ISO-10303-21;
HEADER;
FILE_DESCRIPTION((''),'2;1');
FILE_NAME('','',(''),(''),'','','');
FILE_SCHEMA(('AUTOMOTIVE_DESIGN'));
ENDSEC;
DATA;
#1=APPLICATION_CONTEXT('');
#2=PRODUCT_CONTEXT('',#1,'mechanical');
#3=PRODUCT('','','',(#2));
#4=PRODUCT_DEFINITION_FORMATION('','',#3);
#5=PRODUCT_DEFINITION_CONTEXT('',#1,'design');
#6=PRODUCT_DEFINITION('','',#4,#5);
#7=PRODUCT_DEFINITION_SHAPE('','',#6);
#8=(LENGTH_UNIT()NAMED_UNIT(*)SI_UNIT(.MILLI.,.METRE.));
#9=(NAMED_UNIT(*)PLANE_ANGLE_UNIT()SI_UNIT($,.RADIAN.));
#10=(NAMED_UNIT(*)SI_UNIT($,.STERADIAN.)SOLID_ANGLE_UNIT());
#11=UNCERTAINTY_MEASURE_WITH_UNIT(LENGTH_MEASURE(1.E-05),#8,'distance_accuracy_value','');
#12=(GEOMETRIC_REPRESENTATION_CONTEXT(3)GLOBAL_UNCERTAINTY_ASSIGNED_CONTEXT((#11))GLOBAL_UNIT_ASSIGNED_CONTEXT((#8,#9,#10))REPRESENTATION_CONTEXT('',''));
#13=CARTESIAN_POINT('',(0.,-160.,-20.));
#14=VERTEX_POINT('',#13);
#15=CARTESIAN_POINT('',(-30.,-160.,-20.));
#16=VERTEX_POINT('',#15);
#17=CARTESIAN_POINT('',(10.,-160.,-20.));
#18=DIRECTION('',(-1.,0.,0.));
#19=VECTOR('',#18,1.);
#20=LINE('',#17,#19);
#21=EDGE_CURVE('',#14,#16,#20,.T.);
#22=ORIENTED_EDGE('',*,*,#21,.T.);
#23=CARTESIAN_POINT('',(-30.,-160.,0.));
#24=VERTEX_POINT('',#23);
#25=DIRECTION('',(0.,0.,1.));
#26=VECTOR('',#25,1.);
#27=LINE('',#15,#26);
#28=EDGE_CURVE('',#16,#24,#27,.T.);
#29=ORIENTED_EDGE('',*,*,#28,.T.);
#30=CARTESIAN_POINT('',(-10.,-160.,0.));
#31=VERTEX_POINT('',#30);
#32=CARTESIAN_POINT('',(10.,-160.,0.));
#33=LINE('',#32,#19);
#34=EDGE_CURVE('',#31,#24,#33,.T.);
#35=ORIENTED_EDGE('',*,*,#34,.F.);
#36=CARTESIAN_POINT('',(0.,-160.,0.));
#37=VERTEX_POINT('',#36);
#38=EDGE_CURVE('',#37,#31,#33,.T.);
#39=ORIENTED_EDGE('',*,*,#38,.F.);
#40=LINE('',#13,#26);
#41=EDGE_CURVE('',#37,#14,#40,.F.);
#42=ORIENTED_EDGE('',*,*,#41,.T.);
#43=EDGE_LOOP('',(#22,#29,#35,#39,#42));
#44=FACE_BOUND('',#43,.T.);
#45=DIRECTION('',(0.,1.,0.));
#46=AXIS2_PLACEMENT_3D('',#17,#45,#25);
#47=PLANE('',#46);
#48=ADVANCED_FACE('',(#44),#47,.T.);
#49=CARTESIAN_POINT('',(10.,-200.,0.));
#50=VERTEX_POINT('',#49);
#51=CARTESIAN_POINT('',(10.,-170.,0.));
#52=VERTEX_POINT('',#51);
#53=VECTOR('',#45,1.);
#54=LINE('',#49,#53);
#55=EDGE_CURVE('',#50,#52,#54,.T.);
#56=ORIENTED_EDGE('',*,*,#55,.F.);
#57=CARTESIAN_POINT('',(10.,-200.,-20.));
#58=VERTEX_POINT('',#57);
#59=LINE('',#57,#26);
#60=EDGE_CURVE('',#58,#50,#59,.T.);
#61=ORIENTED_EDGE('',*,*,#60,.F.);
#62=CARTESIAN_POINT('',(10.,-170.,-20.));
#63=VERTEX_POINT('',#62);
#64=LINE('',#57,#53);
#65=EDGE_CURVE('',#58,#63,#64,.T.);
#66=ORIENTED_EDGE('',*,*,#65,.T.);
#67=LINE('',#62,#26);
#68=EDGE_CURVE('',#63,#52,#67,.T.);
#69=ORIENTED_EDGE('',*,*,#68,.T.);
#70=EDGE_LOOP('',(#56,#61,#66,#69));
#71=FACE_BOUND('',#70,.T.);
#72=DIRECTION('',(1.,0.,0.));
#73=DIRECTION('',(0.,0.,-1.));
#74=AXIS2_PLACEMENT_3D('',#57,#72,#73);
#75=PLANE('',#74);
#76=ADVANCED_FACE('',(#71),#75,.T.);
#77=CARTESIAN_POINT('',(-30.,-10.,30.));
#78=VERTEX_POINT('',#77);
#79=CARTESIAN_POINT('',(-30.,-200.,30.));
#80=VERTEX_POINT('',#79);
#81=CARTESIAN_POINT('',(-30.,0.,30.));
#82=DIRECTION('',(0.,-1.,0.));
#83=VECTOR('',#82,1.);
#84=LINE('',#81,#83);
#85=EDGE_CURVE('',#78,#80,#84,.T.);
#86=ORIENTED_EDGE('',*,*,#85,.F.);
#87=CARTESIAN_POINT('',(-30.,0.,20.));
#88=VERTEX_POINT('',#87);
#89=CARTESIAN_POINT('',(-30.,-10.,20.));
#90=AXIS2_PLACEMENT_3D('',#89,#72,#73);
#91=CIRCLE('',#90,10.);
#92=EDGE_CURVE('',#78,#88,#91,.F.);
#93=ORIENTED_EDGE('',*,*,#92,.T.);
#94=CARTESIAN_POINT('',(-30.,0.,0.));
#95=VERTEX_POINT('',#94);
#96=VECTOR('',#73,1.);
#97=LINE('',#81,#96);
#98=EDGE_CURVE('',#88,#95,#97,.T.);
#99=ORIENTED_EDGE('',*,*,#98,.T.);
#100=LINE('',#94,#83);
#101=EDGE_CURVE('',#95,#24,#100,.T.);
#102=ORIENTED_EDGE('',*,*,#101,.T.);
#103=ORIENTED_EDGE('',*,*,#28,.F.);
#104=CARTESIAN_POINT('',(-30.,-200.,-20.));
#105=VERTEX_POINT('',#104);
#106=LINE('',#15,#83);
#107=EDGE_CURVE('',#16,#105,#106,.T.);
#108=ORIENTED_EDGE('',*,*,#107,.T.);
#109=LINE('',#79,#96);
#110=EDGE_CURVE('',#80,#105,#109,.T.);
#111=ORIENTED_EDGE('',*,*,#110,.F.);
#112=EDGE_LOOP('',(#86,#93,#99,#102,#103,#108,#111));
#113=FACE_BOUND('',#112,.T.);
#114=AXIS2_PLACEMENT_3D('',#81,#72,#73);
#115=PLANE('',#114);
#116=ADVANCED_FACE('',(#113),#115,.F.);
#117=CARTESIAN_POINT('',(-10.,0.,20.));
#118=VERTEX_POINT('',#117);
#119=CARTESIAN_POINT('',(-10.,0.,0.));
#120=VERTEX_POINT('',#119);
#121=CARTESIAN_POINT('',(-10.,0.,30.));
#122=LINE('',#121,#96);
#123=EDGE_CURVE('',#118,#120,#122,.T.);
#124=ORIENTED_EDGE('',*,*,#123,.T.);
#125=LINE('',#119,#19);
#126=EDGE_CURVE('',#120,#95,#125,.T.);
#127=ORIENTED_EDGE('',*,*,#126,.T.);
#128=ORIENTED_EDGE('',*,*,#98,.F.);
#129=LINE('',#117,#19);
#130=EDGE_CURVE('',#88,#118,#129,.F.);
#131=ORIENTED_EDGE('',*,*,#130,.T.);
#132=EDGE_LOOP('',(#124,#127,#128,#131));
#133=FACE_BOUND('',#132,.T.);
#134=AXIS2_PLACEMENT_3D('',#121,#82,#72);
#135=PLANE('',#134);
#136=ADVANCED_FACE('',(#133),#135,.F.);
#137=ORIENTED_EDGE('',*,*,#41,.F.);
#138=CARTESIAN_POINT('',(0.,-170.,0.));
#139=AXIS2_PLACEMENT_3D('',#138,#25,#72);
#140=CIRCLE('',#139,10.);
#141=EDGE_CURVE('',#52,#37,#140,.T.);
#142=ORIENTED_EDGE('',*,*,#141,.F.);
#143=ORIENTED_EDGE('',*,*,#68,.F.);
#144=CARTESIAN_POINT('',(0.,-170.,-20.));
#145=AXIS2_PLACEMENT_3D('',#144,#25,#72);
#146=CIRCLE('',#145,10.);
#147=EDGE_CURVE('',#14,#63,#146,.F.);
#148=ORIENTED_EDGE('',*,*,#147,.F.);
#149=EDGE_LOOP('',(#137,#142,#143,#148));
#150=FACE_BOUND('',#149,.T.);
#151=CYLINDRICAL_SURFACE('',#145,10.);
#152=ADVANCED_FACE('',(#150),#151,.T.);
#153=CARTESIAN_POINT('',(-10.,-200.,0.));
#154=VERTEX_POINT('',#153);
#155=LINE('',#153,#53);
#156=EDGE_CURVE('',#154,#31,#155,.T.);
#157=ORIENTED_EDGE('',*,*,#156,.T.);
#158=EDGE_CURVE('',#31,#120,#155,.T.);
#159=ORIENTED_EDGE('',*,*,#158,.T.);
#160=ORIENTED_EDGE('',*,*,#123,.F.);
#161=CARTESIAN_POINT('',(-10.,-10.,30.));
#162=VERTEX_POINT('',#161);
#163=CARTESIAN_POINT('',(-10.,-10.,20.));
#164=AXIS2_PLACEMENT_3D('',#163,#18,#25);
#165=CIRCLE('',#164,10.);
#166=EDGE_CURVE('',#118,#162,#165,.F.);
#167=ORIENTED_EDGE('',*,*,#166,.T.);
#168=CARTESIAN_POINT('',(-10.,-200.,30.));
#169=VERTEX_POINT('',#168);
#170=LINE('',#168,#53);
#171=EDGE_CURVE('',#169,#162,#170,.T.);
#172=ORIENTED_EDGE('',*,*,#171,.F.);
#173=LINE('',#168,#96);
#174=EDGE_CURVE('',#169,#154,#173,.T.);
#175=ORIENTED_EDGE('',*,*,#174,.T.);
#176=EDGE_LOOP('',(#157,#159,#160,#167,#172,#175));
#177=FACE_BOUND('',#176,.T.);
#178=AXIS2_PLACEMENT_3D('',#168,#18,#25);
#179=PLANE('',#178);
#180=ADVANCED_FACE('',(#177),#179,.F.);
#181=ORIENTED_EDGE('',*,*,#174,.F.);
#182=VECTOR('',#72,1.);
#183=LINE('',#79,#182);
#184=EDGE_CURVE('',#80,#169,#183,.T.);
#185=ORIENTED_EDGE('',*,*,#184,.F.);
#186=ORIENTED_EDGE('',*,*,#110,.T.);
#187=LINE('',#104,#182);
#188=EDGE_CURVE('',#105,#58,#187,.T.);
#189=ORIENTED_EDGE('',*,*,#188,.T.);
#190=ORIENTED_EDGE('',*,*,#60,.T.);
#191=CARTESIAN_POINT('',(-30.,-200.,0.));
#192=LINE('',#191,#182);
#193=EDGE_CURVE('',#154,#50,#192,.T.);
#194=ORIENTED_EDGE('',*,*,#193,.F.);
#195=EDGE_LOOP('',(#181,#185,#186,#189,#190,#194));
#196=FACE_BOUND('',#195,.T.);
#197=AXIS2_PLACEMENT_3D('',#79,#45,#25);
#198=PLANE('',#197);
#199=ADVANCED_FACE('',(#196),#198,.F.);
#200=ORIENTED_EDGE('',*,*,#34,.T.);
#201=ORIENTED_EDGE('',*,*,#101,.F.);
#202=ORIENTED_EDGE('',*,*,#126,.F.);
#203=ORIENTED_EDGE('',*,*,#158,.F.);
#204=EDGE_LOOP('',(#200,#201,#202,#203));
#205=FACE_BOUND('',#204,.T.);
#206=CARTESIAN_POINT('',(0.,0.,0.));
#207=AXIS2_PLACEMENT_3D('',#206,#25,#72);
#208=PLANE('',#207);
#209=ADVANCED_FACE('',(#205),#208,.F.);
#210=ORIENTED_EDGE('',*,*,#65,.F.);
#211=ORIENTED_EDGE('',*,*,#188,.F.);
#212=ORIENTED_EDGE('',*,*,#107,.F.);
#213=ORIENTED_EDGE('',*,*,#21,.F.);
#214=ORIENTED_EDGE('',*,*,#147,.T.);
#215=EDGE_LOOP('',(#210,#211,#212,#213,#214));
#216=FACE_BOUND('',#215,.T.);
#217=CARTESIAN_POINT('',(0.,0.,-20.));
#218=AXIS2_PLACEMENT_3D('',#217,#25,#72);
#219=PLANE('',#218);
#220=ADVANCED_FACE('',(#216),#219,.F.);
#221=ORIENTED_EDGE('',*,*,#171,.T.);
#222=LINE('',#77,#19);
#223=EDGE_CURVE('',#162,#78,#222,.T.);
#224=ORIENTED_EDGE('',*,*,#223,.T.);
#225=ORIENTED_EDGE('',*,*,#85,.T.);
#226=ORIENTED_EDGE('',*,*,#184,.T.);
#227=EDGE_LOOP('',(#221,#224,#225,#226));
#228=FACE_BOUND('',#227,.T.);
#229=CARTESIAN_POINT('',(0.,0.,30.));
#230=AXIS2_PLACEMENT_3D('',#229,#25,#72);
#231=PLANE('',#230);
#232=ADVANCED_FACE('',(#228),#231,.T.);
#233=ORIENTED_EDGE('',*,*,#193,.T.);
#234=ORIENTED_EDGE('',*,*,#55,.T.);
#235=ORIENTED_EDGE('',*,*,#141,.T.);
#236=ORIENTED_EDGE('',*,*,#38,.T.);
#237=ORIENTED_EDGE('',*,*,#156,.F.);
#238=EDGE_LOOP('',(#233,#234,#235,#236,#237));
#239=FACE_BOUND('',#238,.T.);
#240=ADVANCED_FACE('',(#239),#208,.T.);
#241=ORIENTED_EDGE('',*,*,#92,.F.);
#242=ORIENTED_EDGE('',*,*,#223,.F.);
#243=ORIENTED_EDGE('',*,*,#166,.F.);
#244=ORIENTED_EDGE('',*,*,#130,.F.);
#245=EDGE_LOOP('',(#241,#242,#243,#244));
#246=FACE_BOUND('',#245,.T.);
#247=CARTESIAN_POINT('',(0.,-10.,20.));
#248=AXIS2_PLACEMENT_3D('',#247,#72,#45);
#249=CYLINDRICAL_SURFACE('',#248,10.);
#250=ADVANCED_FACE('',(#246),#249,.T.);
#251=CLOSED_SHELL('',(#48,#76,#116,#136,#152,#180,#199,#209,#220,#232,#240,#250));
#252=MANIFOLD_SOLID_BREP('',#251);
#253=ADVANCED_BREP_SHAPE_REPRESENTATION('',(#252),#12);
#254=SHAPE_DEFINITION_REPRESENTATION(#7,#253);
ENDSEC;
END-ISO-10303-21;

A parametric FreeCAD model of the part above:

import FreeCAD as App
import Part
import Sketcher

V = App.Vector
Q = App.Units.Quantity


def edges_at(feature, points):
    """Names of the edges that pass closest to the given points."""
    edges = feature.Shape.Edges
    near = lambda p: min(range(len(edges)), key=lambda i: edges[i].distToShape(Part.Vertex(*p))[0])
    return sorted({f"Edge{near(p) + 1}" for p in points})

doc = App.newDocument("Part")
body = doc.addObject("PartDesign::Body", "Body")

# Sketch on XY plane
sketch1 = body.newObject("Sketcher::SketchObject", "Sketch")
sketch1.AttachmentSupport = (doc.getObject("XY_Plane"), [""])
sketch1.MapMode = "FlatFace"
sketch1.addGeometry(Part.LineSegment(V(-30, 0, 0), V(-30, -200, 0)), False)
sketch1.addGeometry(Part.LineSegment(V(-30, -200, 0), V(-10, -200, 0)), False)
sketch1.addGeometry(Part.LineSegment(V(-10, -200, 0), V(-10, 0, 0)), False)
sketch1.addGeometry(Part.LineSegment(V(-10, 0, 0), V(-30, 0, 0)), False)
sketch1.addConstraint(Sketcher.Constraint("Coincident", 0, 2, 1, 1))
sketch1.addConstraint(Sketcher.Constraint("Coincident", 1, 2, 2, 1))
sketch1.addConstraint(Sketcher.Constraint("Coincident", 2, 2, 3, 1))
sketch1.addConstraint(Sketcher.Constraint("Coincident", 3, 2, 0, 1))
sketch1.addConstraint(Sketcher.Constraint("Vertical", 0))
sketch1.addConstraint(Sketcher.Constraint("Horizontal", 1))
sketch1.addConstraint(Sketcher.Constraint("Vertical", 2))
sketch1.addConstraint(Sketcher.Constraint("Horizontal", 3))
sketch1.addConstraint(Sketcher.Constraint("PointOnObject", 2, 2, -1))
sketch1.addConstraint(Sketcher.Constraint("DistanceX", 1, 1, 1, 2, Q("20 mm")))
sketch1.addConstraint(Sketcher.Constraint("DistanceY", 0, 2, 0, 1, Q("200 mm")))
sketch1.addConstraint(Sketcher.Constraint("DistanceX", 0, 2, -1, 1, Q("30 mm")))
pad1 = body.newObject("PartDesign::Pad", "Pad")
pad1.Profile = sketch1
pad1.Length = 30

# Sketch on XY plane
sketch2 = body.newObject("Sketcher::SketchObject", "Sketch001")
sketch2.AttachmentSupport = (doc.getObject("XY_Plane"), [""])
sketch2.MapMode = "FlatFace"
sketch2.addGeometry(Part.LineSegment(V(-30, -160, 0), V(-30, -200, 0)), False)
sketch2.addGeometry(Part.LineSegment(V(-30, -200, 0), V(10, -200, 0)), False)
sketch2.addGeometry(Part.LineSegment(V(10, -200, 0), V(10, -160, 0)), False)
sketch2.addGeometry(Part.LineSegment(V(10, -160, 0), V(-30, -160, 0)), False)
sketch2.addConstraint(Sketcher.Constraint("Coincident", 0, 2, 1, 1))
sketch2.addConstraint(Sketcher.Constraint("Coincident", 1, 2, 2, 1))
sketch2.addConstraint(Sketcher.Constraint("Coincident", 2, 2, 3, 1))
sketch2.addConstraint(Sketcher.Constraint("Coincident", 3, 2, 0, 1))
sketch2.addConstraint(Sketcher.Constraint("Vertical", 0))
sketch2.addConstraint(Sketcher.Constraint("Horizontal", 1))
sketch2.addConstraint(Sketcher.Constraint("Vertical", 2))
sketch2.addConstraint(Sketcher.Constraint("Horizontal", 3))
sketch2.addConstraint(Sketcher.Constraint("Equal", 3, 0))
sketch2.addConstraint(Sketcher.Constraint("DistanceX", 1, 1, 1, 2, Q("40 mm")))
sketch2.addConstraint(Sketcher.Constraint("DistanceX", 0, 2, -1, 1, Q("30 mm")))
sketch2.addConstraint(Sketcher.Constraint("DistanceY", 0, 2, -1, 1, Q("200 mm")))
pad2 = body.newObject("PartDesign::Pad", "Pad001")
pad2.Profile = sketch2
pad2.Length = 20
pad2.Reversed = True
doc.recompute()

fillet = body.newObject("PartDesign::Fillet", "Fillet")
fillet.Base = (pad2, edges_at(pad2, [(10, -160, -10), (-20, 0, 30)]))
fillet.Radius = 10

doc.recompute()
